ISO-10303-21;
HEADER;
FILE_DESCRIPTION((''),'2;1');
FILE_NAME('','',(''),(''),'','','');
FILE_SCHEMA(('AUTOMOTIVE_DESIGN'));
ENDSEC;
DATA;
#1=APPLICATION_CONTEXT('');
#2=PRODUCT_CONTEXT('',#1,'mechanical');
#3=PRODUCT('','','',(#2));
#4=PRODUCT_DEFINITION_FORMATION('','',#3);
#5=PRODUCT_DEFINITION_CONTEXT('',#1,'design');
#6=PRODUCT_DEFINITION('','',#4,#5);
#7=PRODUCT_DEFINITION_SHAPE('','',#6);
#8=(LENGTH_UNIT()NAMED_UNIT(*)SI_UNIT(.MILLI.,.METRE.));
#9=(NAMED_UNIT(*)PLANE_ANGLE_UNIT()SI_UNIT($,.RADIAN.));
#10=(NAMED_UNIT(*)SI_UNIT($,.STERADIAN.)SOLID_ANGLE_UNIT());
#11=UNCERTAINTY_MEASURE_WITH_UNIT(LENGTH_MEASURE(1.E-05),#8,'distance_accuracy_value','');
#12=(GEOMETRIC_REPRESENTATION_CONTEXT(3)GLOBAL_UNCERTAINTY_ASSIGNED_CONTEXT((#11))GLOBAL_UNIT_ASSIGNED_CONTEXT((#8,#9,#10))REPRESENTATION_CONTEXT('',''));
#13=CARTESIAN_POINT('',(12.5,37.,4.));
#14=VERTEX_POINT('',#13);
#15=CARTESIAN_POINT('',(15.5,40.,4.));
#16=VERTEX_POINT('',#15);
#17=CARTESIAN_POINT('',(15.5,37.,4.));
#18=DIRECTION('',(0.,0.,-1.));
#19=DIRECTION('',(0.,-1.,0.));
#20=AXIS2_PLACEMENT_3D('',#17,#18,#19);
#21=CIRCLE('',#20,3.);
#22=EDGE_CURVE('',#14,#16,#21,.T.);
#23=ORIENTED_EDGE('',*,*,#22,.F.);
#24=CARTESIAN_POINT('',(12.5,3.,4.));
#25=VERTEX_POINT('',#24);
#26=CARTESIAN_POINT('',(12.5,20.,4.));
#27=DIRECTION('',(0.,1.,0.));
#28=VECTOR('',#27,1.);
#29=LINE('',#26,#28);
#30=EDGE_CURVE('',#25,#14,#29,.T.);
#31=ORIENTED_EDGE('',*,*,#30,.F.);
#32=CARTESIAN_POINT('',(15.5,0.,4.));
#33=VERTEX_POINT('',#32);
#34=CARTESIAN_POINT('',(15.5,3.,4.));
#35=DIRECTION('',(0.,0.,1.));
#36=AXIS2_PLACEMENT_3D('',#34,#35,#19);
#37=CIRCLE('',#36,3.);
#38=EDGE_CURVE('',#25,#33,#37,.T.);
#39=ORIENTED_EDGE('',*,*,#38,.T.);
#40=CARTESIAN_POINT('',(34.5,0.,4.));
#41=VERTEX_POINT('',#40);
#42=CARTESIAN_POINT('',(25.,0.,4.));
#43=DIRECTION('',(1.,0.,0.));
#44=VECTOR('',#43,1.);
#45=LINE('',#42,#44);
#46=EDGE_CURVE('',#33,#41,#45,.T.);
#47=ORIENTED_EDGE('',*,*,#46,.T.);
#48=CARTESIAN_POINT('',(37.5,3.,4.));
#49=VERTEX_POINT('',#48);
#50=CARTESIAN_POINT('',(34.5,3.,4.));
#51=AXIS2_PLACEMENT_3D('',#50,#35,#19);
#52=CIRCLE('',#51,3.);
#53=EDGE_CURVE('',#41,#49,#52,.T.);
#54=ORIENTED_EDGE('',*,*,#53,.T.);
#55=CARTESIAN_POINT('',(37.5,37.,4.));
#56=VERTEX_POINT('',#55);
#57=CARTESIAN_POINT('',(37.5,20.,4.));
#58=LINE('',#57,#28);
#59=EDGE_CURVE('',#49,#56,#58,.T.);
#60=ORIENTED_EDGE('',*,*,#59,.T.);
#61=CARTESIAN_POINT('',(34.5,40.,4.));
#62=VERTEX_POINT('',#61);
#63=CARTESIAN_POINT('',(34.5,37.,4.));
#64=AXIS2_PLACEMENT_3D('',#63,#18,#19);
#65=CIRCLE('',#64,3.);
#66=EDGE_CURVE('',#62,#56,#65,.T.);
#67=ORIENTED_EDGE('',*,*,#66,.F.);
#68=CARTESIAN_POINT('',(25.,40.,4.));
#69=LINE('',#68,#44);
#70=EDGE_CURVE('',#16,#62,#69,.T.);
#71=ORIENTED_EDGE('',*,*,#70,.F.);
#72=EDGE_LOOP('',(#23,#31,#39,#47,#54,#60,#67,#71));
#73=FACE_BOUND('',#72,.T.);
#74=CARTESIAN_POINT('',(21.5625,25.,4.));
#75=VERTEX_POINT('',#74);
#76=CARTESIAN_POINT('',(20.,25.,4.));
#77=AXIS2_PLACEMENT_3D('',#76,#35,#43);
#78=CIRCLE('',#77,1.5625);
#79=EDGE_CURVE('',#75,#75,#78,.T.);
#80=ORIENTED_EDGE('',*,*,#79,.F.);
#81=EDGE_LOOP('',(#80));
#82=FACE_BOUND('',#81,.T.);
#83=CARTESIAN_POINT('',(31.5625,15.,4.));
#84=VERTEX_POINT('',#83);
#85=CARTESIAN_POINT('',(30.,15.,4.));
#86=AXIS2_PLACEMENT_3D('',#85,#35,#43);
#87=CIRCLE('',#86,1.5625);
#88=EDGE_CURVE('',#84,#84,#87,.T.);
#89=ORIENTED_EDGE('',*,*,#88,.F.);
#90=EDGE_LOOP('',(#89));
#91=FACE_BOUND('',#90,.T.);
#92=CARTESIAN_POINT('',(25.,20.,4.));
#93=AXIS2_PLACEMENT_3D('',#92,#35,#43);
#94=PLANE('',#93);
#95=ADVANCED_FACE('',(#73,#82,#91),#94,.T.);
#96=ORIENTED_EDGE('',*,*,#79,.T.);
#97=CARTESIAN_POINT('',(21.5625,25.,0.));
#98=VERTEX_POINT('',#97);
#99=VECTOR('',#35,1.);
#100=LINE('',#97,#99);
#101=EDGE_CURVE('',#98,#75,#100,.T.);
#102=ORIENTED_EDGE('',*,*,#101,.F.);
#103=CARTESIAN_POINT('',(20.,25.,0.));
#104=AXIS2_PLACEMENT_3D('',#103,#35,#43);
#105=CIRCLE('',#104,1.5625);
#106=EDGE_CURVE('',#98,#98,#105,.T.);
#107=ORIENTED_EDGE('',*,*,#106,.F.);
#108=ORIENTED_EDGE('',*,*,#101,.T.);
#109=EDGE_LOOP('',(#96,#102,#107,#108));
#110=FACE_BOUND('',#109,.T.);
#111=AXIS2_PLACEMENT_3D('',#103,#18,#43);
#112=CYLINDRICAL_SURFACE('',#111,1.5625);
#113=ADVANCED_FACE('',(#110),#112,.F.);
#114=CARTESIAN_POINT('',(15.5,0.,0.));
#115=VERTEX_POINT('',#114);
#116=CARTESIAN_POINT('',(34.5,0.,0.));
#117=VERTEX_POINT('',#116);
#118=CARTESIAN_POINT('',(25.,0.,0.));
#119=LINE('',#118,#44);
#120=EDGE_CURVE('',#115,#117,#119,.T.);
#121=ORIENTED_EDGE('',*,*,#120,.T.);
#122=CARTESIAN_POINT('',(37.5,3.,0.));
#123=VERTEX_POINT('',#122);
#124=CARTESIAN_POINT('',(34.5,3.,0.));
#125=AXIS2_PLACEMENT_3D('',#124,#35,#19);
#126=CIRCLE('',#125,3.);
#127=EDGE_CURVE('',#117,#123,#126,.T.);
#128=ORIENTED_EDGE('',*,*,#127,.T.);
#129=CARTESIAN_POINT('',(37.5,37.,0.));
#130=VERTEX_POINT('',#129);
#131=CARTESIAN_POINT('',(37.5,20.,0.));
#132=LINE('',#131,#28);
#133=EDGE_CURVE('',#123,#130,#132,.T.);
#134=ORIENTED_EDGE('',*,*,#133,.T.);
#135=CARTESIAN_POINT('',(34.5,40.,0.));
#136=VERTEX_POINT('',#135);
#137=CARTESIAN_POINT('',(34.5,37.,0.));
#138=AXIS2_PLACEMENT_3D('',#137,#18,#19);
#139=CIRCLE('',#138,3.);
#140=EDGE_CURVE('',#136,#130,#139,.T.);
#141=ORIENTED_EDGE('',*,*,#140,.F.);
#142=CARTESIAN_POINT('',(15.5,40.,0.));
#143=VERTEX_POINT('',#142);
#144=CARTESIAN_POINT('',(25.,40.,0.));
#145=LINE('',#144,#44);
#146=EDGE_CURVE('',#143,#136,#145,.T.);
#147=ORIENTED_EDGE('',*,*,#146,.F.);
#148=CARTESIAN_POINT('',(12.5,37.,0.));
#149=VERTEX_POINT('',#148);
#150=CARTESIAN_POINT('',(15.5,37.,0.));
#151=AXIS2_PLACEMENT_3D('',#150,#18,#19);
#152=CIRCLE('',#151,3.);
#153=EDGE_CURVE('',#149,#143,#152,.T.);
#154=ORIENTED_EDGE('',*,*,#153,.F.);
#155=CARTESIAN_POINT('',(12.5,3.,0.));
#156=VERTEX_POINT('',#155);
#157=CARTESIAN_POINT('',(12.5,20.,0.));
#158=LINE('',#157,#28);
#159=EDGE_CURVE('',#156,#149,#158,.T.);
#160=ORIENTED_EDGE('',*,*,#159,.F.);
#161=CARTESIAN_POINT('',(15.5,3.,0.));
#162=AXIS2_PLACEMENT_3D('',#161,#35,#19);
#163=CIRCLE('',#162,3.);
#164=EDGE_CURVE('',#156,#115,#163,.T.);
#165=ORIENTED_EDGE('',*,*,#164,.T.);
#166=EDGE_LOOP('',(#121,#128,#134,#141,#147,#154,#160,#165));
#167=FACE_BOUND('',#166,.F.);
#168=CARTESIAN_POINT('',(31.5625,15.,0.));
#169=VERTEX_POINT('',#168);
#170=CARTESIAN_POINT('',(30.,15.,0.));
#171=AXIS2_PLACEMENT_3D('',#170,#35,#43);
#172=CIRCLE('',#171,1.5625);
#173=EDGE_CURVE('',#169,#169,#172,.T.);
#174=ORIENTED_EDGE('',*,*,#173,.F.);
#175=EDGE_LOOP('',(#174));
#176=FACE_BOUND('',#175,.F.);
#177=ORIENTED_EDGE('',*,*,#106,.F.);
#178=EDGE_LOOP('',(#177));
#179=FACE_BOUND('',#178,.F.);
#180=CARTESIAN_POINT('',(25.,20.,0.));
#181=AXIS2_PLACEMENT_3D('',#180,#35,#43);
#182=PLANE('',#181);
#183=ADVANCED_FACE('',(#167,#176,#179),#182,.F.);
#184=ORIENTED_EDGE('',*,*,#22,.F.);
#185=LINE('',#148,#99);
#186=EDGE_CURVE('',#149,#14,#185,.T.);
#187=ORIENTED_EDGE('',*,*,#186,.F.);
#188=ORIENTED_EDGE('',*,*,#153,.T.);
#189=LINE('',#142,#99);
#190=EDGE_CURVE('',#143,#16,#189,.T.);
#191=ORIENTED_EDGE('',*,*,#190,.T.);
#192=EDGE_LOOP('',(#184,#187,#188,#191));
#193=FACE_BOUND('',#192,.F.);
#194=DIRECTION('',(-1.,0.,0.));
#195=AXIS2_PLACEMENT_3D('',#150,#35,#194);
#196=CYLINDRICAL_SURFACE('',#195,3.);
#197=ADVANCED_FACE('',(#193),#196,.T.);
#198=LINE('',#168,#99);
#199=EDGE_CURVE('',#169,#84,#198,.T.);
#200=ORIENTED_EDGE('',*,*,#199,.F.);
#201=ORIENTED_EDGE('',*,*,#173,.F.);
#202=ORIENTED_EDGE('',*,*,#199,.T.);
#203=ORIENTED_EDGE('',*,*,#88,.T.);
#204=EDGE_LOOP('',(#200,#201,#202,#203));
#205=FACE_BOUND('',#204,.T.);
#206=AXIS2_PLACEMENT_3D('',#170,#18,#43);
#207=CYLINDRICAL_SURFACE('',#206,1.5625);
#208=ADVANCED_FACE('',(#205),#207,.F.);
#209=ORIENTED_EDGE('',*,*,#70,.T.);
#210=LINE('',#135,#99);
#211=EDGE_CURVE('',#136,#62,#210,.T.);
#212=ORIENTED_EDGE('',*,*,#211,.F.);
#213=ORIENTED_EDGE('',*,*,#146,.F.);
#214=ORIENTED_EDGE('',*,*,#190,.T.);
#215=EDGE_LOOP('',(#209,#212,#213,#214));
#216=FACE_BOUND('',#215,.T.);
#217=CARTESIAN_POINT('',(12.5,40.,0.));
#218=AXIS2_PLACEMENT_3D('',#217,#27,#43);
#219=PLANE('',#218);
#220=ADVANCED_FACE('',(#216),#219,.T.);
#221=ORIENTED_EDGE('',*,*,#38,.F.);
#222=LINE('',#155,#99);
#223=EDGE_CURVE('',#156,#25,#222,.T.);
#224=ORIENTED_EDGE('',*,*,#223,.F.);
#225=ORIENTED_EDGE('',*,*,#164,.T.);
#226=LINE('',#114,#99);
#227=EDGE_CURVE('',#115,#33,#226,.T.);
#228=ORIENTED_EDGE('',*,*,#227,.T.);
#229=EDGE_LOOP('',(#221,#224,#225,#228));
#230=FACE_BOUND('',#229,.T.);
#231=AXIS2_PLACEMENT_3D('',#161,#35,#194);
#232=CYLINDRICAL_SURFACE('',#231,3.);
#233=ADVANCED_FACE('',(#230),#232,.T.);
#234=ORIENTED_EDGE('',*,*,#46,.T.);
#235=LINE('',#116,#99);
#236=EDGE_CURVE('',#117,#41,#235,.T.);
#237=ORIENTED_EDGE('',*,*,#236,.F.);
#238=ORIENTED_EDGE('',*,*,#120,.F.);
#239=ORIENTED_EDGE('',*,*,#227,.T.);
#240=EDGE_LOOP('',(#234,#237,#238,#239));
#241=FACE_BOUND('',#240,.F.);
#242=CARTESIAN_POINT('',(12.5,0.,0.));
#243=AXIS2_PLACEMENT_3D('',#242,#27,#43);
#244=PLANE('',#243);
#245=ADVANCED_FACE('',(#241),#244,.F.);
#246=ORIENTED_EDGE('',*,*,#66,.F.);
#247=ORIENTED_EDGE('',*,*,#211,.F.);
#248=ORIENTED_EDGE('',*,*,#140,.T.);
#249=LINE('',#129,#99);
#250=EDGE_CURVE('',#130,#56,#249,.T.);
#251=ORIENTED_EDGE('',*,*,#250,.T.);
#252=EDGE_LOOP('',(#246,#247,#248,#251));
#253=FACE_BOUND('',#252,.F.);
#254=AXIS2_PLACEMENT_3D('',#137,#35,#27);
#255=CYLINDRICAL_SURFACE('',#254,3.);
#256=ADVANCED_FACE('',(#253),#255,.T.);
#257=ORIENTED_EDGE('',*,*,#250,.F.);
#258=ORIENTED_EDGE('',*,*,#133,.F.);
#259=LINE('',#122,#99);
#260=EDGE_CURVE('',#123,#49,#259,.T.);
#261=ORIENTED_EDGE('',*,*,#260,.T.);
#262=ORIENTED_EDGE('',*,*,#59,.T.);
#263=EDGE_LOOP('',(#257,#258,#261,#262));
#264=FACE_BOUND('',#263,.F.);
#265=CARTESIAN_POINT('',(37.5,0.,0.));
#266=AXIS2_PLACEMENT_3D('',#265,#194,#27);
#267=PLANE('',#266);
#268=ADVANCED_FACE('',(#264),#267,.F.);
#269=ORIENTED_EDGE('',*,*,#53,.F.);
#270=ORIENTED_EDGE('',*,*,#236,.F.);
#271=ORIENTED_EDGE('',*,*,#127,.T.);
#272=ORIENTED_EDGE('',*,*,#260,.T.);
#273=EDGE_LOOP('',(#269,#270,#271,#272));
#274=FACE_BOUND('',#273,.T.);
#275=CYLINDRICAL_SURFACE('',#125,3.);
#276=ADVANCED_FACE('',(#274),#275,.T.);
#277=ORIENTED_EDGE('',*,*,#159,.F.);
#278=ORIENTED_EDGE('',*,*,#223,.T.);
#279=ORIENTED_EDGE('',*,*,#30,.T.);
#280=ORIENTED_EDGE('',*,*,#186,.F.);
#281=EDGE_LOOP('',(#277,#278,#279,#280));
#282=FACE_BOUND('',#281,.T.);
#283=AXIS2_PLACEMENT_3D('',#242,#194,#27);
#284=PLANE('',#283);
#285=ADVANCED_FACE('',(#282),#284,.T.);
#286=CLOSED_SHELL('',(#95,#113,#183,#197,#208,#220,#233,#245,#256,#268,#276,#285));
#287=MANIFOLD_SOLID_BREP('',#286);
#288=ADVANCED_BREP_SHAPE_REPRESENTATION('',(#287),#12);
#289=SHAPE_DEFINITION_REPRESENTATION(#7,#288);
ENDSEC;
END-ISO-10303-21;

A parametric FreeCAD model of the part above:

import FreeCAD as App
import Part
import Sketcher
from FreeCAD import Vector


def edges_at(feature, points):
    """Names of the edges that pass closest to the given points."""
    edges = feature.Shape.Edges
    near = lambda p: min(range(len(edges)), key=lambda i: edges[i].distToShape(Part.Vertex(*p))[0])
    return sorted({f"Edge{near(p) + 1}" for p in points})


def add_polygon(sketch, points):
    """Adds a closed chain of lines whose ends are joined by coincident constraints."""
    first, n = sketch.GeometryCount, len(points)
    for a, b in zip(points, points[1:] + points[:1]):
        sketch.addGeometry(Part.LineSegment(App.Vector(*a, 0), App.Vector(*b, 0)), False)
    for i in range(n):
        sketch.addConstraint(Sketcher.Constraint("Coincident", first + i, 2, first + (i + 1) % n, 1))

doc = App.newDocument("Part")
body = doc.addObject("PartDesign::Body", "Body")

# Sketch on XY plane
sketch1 = doc.addObject("Sketcher::SketchObject", "Sketch")
body.addObject(sketch1)
sketch1.AttachmentSupport = (doc.XY_Plane, [""])
sketch1.MapMode = "FlatFace"
add_polygon(sketch1, [(12.5, 40), (12.5, 0), (37.5, 0), (37.5, 40)])  # lines 0-3
sketch1.addGeometry(Part.Circle(Vector(30, 15, 0), Vector(0, 0, 1), 1.6), False)  # 4
sketch1.addGeometry(Part.Circle(Vector(20, 25, 0), Vector(0, 0, 1), 1.6), False)  # 5
sketch1.addConstraint([
    Sketcher.Constraint("Vertical", 0),
    Sketcher.Constraint("Horizontal", 1),
    Sketcher.Constraint("Vertical", 2),
    Sketcher.Constraint("Horizontal", 3),
    Sketcher.Constraint("Equal", 4, 5),
    Sketcher.Constraint("PointOnObject", 0, 2, -1),
    Sketcher.Constraint("DistanceX", 1, 1, 1, 2, 25.0),
    Sketcher.Constraint("DistanceY", 0, 2, 0, 1, 40.0),
    Sketcher.Constraint("Diameter", 4, 3.125),
    Sketcher.Constraint("DistanceX", -1, 1, 4, 3, 30.0),
    Sketcher.Constraint("DistanceY", -1, 1, 4, 3, 15.0),
    Sketcher.Constraint("DistanceX", -1, 1, 5, 3, 20.0),
    Sketcher.Constraint("DistanceY", -1, 1, 5, 3, 25.0),
    Sketcher.Constraint("DistanceX", -1, 1, 0, 2, 12.5),
])
pad1 = doc.addObject("PartDesign::Pad", "Pad")
body.addObject(pad1)
pad1.Profile = sketch1
pad1.Length = 4
doc.recompute()

fillet = doc.addObject("PartDesign::Fillet", "Fillet")
body.addObject(fillet)
fillet.Base = (pad1, edges_at(pad1, [
    (12.5, 0, 2),
    (12.5, 40, 2),
    (37.5, 40, 2),
    (37.5, 0, 2),
]))
fillet.Radius = 3

doc.recompute()
